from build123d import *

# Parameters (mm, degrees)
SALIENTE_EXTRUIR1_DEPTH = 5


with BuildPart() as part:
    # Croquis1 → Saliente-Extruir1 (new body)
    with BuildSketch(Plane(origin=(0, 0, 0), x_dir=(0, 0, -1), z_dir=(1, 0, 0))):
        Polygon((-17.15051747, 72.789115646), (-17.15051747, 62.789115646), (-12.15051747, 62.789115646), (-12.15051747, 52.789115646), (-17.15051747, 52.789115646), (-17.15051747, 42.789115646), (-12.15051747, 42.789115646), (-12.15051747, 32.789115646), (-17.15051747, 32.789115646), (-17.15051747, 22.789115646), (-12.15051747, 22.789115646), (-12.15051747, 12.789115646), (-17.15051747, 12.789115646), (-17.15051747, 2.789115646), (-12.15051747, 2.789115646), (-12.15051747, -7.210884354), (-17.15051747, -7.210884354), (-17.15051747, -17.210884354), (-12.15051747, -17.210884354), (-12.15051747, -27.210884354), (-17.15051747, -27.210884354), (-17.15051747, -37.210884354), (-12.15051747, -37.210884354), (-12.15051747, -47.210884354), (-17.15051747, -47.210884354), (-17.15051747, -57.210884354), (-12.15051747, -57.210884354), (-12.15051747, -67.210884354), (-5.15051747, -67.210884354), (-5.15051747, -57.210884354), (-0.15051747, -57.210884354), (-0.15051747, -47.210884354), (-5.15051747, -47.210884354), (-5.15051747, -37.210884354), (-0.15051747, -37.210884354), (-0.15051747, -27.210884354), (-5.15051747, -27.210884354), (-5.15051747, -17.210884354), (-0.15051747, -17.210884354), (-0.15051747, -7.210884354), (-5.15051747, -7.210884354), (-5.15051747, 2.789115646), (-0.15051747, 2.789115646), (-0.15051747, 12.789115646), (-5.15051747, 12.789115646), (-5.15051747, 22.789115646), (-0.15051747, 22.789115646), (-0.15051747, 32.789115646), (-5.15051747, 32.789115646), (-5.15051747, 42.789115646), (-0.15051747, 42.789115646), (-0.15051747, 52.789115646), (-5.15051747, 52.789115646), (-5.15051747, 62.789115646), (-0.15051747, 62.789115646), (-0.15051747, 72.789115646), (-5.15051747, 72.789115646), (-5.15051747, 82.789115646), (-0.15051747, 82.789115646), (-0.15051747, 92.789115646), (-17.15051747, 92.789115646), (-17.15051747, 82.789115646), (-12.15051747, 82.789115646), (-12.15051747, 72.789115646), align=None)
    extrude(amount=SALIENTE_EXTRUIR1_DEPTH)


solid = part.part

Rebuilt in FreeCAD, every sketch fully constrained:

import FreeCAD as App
import Part
import Sketcher
from FreeCAD import Vector

doc = App.newDocument("Part")
body = doc.addObject("PartDesign::Body", "Body")

sketch1 = body.newObject("Sketcher::SketchObject", "Sketch")
sketch1.AttachmentSupport = (doc.getObject("YZ_Plane"), [""])
sketch1.MapMode = "FlatFace"
sketch1.addGeometry(Part.LineSegment(Vector(73, 17, 0), Vector(63, 17, 0)), False)
sketch1.addGeometry(Part.LineSegment(Vector(63, 17, 0), Vector(63, 12, 0)), False)
sketch1.addGeometry(Part.LineSegment(Vector(63, 12, 0), Vector(53, 12, 0)), False)
sketch1.addGeometry(Part.LineSegment(Vector(53, 12, 0), Vector(53, 17, 0)), False)
sketch1.addGeometry(Part.LineSegment(Vector(53, 17, 0), Vector(43, 17, 0)), False)
sketch1.addGeometry(Part.LineSegment(Vector(43, 17, 0), Vector(43, 12, 0)), False)
sketch1.addGeometry(Part.LineSegment(Vector(43, 12, 0), Vector(33, 12, 0)), False)
sketch1.addGeometry(Part.LineSegment(Vector(33, 12, 0), Vector(33, 17, 0)), False)
sketch1.addGeometry(Part.LineSegment(Vector(33, 17, 0), Vector(23, 17, 0)), False)
sketch1.addGeometry(Part.LineSegment(Vector(23, 17, 0), Vector(23, 12, 0)), False)
sketch1.addGeometry(Part.LineSegment(Vector(23, 12, 0), Vector(13, 12, 0)), False)
sketch1.addGeometry(Part.LineSegment(Vector(13, 12, 0), Vector(13, 17, 0)), False)
sketch1.addGeometry(Part.LineSegment(Vector(13, 17, 0), Vector(3, 17, 0)), False)
sketch1.addGeometry(Part.LineSegment(Vector(3, 17, 0), Vector(3, 12, 0)), False)
sketch1.addGeometry(Part.LineSegment(Vector(3, 12, 0), Vector(-7, 12, 0)), False)
sketch1.addGeometry(Part.LineSegment(Vector(-7, 12, 0), Vector(-7, 17, 0)), False)
sketch1.addGeometry(Part.LineSegment(Vector(-7, 17, 0), Vector(-17, 17, 0)), False)
sketch1.addGeometry(Part.LineSegment(Vector(-17, 17, 0), Vector(-17, 12, 0)), False)
sketch1.addGeometry(Part.LineSegment(Vector(-17, 12, 0), Vector(-27, 12, 0)), False)
sketch1.addGeometry(Part.LineSegment(Vector(-27, 12, 0), Vector(-27, 17, 0)), False)
sketch1.addGeometry(Part.LineSegment(Vector(-27, 17, 0), Vector(-37, 17, 0)), False)
sketch1.addGeometry(Part.LineSegment(Vector(-37, 17, 0), Vector(-37, 12, 0)), False)
sketch1.addGeometry(Part.LineSegment(Vector(-37, 12, 0), Vector(-47, 12, 0)), False)
sketch1.addGeometry(Part.LineSegment(Vector(-47, 12, 0), Vector(-47, 17, 0)), False)
sketch1.addGeometry(Part.LineSegment(Vector(-47, 17, 0), Vector(-57, 17, 0)), False)
sketch1.addGeometry(Part.LineSegment(Vector(-57, 17, 0), Vector(-57, 12, 0)), False)
sketch1.addGeometry(Part.LineSegment(Vector(-57, 12, 0), Vector(-67, 12, 0)), False)
sketch1.addGeometry(Part.LineSegment(Vector(-67, 12, 0), Vector(-67, 5, 0)), False)
sketch1.addGeometry(Part.LineSegment(Vector(-67, 5, 0), Vector(-57, 5, 0)), False)
sketch1.addGeometry(Part.LineSegment(Vector(-57, 5, 0), Vector(-57, 0, 0)), False)
sketch1.addGeometry(Part.LineSegment(Vector(-57, 0, 0), Vector(-47, 0, 0)), False)
sketch1.addGeometry(Part.LineSegment(Vector(-47, 0, 0), Vector(-47, 5, 0)), False)
sketch1.addGeometry(Part.LineSegment(Vector(-47, 5, 0), Vector(-37, 5, 0)), False)
sketch1.addGeometry(Part.LineSegment(Vector(-37, 5, 0), Vector(-37, 0, 0)), False)
sketch1.addGeometry(Part.LineSegment(Vector(-37, 0, 0), Vector(-27, 0, 0)), False)
sketch1.addGeometry(Part.LineSegment(Vector(-27, 0, 0), Vector(-27, 5, 0)), False)
sketch1.addGeometry(Part.LineSegment(Vector(-27, 5, 0), Vector(-17, 5, 0)), False)
sketch1.addGeometry(Part.LineSegment(Vector(-17, 5, 0), Vector(-17, 0, 0)), False)
sketch1.addGeometry(Part.LineSegment(Vector(-17, 0, 0), Vector(-7, 0, 0)), False)
sketch1.addGeometry(Part.LineSegment(Vector(-7, 0, 0), Vector(-7, 5, 0)), False)
sketch1.addGeometry(Part.LineSegment(Vector(-7, 5, 0), Vector(3, 5, 0)), False)
sketch1.addGeometry(Part.LineSegment(Vector(3, 5, 0), Vector(3, 0, 0)), False)
sketch1.addGeometry(Part.LineSegment(Vector(3, 0, 0), Vector(13, 0, 0)), False)
sketch1.addGeometry(Part.LineSegment(Vector(13, 0, 0), Vector(13, 5, 0)), False)
sketch1.addGeometry(Part.LineSegment(Vector(13, 5, 0), Vector(23, 5, 0)), False)
sketch1.addGeometry(Part.LineSegment(Vector(23, 5, 0), Vector(23, 0, 0)), False)
sketch1.addGeometry(Part.LineSegment(Vector(23, 0, 0), Vector(33, 0, 0)), False)
sketch1.addGeometry(Part.LineSegment(Vector(33, 0, 0), Vector(33, 5, 0)), False)
sketch1.addGeometry(Part.LineSegment(Vector(33, 5, 0), Vector(43, 5, 0)), False)
sketch1.addGeometry(Part.LineSegment(Vector(43, 5, 0), Vector(43, 0, 0)), False)
sketch1.addGeometry(Part.LineSegment(Vector(43, 0, 0), Vector(53, 0, 0)), False)
sketch1.addGeometry(Part.LineSegment(Vector(53, 0, 0), Vector(53, 5, 0)), False)
sketch1.addGeometry(Part.LineSegment(Vector(53, 5, 0), Vector(63, 5, 0)), False)
sketch1.addGeometry(Part.LineSegment(Vector(63, 5, 0), Vector(63, 0, 0)), False)
sketch1.addGeometry(Part.LineSegment(Vector(63, 0, 0), Vector(73, 0, 0)), False)
sketch1.addGeometry(Part.LineSegment(Vector(73, 0, 0), Vector(73, 5, 0)), False)
sketch1.addGeometry(Part.LineSegment(Vector(73, 5, 0), Vector(83, 5, 0)), False)
sketch1.addGeometry(Part.LineSegment(Vector(83, 5, 0), Vector(83, 0, 0)), False)
sketch1.addGeometry(Part.LineSegment(Vector(83, 0, 0), Vector(93, 0, 0)), False)
sketch1.addGeometry(Part.LineSegment(Vector(93, 0, 0), Vector(93, 17, 0)), False)
sketch1.addGeometry(Part.LineSegment(Vector(93, 17, 0), Vector(83, 17, 0)), False)
sketch1.addGeometry(Part.LineSegment(Vector(83, 17, 0), Vector(83, 12, 0)), False)
sketch1.addGeometry(Part.LineSegment(Vector(83, 12, 0), Vector(73, 12, 0)), False)
sketch1.addGeometry(Part.LineSegment(Vector(73, 12, 0), Vector(73, 17, 0)), False)
sketch1.addConstraint(Sketcher.Constraint("Coincident", 0, 2, 1, 1))
sketch1.addConstraint(Sketcher.Constraint("Coincident", 1, 2, 2, 1))
sketch1.addConstraint(Sketcher.Constraint("Coincident", 2, 2, 3, 1))
sketch1.addConstraint(Sketcher.Constraint("Coincident", 3, 2, 4, 1))
sketch1.addConstraint(Sketcher.Constraint("Coincident", 4, 2, 5, 1))
sketch1.addConstraint(Sketcher.Constraint("Coincident", 5, 2, 6, 1))
sketch1.addConstraint(Sketcher.Constraint("Coincident", 6, 2, 7, 1))
sketch1.addConstraint(Sketcher.Constraint("Coincident", 7, 2, 8, 1))
sketch1.addConstraint(Sketcher.Constraint("Coincident", 8, 2, 9, 1))
sketch1.addConstraint(Sketcher.Constraint("Coincident", 9, 2, 10, 1))
sketch1.addConstraint(Sketcher.Constraint("Coincident", 10, 2, 11, 1))
sketch1.addConstraint(Sketcher.Constraint("Coincident", 11, 2, 12, 1))
sketch1.addConstraint(Sketcher.Constraint("Coincident", 12, 2, 13, 1))
sketch1.addConstraint(Sketcher.Constraint("Coincident", 13, 2, 14, 1))
sketch1.addConstraint(Sketcher.Constraint("Coincident", 14, 2, 15, 1))
sketch1.addConstraint(Sketcher.Constraint("Coincident", 15, 2, 16, 1))
sketch1.addConstraint(Sketcher.Constraint("Coincident", 16, 2, 17, 1))
sketch1.addConstraint(Sketcher.Constraint("Coincident", 17, 2, 18, 1))
sketch1.addConstraint(Sketcher.Constraint("Coincident", 18, 2, 19, 1))
sketch1.addConstraint(Sketcher.Constraint("Coincident", 19, 2, 20, 1))
sketch1.addConstraint(Sketcher.Constraint("Coincident", 20, 2, 21, 1))
sketch1.addConstraint(Sketcher.Constraint("Coincident", 21, 2, 22, 1))
sketch1.addConstraint(Sketcher.Constraint("Coincident", 22, 2, 23, 1))
sketch1.addConstraint(Sketcher.Constraint("Coincident", 23, 2, 24, 1))
sketch1.addConstraint(Sketcher.Constraint("Coincident", 24, 2, 25, 1))
sketch1.addConstraint(Sketcher.Constraint("Coincident", 25, 2, 26, 1))
sketch1.addConstraint(Sketcher.Constraint("Coincident", 26, 2, 27, 1))
sketch1.addConstraint(Sketcher.Constraint("Coincident", 27, 2, 28, 1))
sketch1.addConstraint(Sketcher.Constraint("Coincident", 28, 2, 29, 1))
sketch1.addConstraint(Sketcher.Constraint("Coincident", 29, 2, 30, 1))
sketch1.addConstraint(Sketcher.Constraint("Coincident", 30, 2, 31, 1))
sketch1.addConstraint(Sketcher.Constraint("Coincident", 31, 2, 32, 1))
sketch1.addConstraint(Sketcher.Constraint("Coincident", 32, 2, 33, 1))
sketch1.addConstraint(Sketcher.Constraint("Coincident", 33, 2, 34, 1))
sketch1.addConstraint(Sketcher.Constraint("Coincident", 34, 2, 35, 1))
sketch1.addConstraint(Sketcher.Constraint("Coincident", 35, 2, 36, 1))
sketch1.addConstraint(Sketcher.Constraint("Coincident", 36, 2, 37, 1))
sketch1.addConstraint(Sketcher.Constraint("Coincident", 37, 2, 38, 1))
sketch1.addConstraint(Sketcher.Constraint("Coincident", 38, 2, 39, 1))
sketch1.addConstraint(Sketcher.Constraint("Coincident", 39, 2, 40, 1))
sketch1.addConstraint(Sketcher.Constraint("Coincident", 40, 2, 41, 1))
sketch1.addConstraint(Sketcher.Constraint("Coincident", 41, 2, 42, 1))
sketch1.addConstraint(Sketcher.Constraint("Coincident", 42, 2, 43, 1))
sketch1.addConstraint(Sketcher.Constraint("Coincident", 43, 2, 44, 1))
sketch1.addConstraint(Sketcher.Constraint("Coincident", 44, 2, 45, 1))
sketch1.addConstraint(Sketcher.Constraint("Coincident", 45, 2, 46, 1))
sketch1.addConstraint(Sketcher.Constraint("Coincident", 46, 2, 47, 1))
sketch1.addConstraint(Sketcher.Constraint("Coincident", 47, 2, 48, 1))
sketch1.addConstraint(Sketcher.Constraint("Coincident", 48, 2, 49, 1))
sketch1.addConstraint(Sketcher.Constraint("Coincident", 49, 2, 50, 1))
sketch1.addConstraint(Sketcher.Constraint("Coincident", 50, 2, 51, 1))
sketch1.addConstraint(Sketcher.Constraint("Coincident", 51, 2, 52, 1))
sketch1.addConstraint(Sketcher.Constraint("Coincident", 52, 2, 53, 1))
sketch1.addConstraint(Sketcher.Constraint("Coincident", 53, 2, 54, 1))
sketch1.addConstraint(Sketcher.Constraint("Coincident", 54, 2, 55, 1))
sketch1.addConstraint(Sketcher.Constraint("Coincident", 55, 2, 56, 1))
sketch1.addConstraint(Sketcher.Constraint("Coincident", 56, 2, 57, 1))
sketch1.addConstraint(Sketcher.Constraint("Coincident", 57, 2, 58, 1))
sketch1.addConstraint(Sketcher.Constraint("Coincident", 58, 2, 59, 1))
sketch1.addConstraint(Sketcher.Constraint("Coincident", 59, 2, 60, 1))
sketch1.addConstraint(Sketcher.Constraint("Coincident", 60, 2, 61, 1))
sketch1.addConstraint(Sketcher.Constraint("Coincident", 61, 2, 62, 1))
sketch1.addConstraint(Sketcher.Constraint("Coincident", 62, 2, 63, 1))
sketch1.addConstraint(Sketcher.Constraint("Coincident", 63, 2, 0, 1))
sketch1.addConstraint(Sketcher.Constraint("Horizontal", 0))
sketch1.addConstraint(Sketcher.Constraint("Vertical", 1))
sketch1.addConstraint(Sketcher.Constraint("Horizontal", 2))
sketch1.addConstraint(Sketcher.Constraint("Vertical", 3))
sketch1.addConstraint(Sketcher.Constraint("Horizontal", 4))
sketch1.addConstraint(Sketcher.Constraint("Vertical", 5))
sketch1.addConstraint(Sketcher.Constraint("Horizontal", 6))
sketch1.addConstraint(Sketcher.Constraint("Vertical", 7))
sketch1.addConstraint(Sketcher.Constraint("Horizontal", 8))
sketch1.addConstraint(Sketcher.Constraint("Vertical", 9))
sketch1.addConstraint(Sketcher.Constraint("Horizontal", 10))
sketch1.addConstraint(Sketcher.Constraint("Vertical", 11))
sketch1.addConstraint(Sketcher.Constraint("Horizontal", 12))
sketch1.addConstraint(Sketcher.Constraint("Vertical", 13))
sketch1.addConstraint(Sketcher.Constraint("Horizontal", 14))
sketch1.addConstraint(Sketcher.Constraint("Vertical", 15))
sketch1.addConstraint(Sketcher.Constraint("Horizontal", 16))
sketch1.addConstraint(Sketcher.Constraint("Vertical", 17))
sketch1.addConstraint(Sketcher.Constraint("Horizontal", 18))
sketch1.addConstraint(Sketcher.Constraint("Vertical", 19))
sketch1.addConstraint(Sketcher.Constraint("Horizontal", 20))
sketch1.addConstraint(Sketcher.Constraint("Vertical", 21))
sketch1.addConstraint(Sketcher.Constraint("Horizontal", 22))
sketch1.addConstraint(Sketcher.Constraint("Vertical", 23))
sketch1.addConstraint(Sketcher.Constraint("Horizontal", 24))
sketch1.addConstraint(Sketcher.Constraint("Vertical", 25))
sketch1.addConstraint(Sketcher.Constraint("Horizontal", 26))
sketch1.addConstraint(Sketcher.Constraint("Vertical", 27))
sketch1.addConstraint(Sketcher.Constraint("Horizontal", 28))
sketch1.addConstraint(Sketcher.Constraint("Vertical", 29))
sketch1.addConstraint(Sketcher.Constraint("Horizontal", 30))
sketch1.addConstraint(Sketcher.Constraint("Vertical", 31))
sketch1.addConstraint(Sketcher.Constraint("Horizontal", 32))
sketch1.addConstraint(Sketcher.Constraint("Vertical", 33))
sketch1.addConstraint(Sketcher.Constraint("Horizontal", 34))
sketch1.addConstraint(Sketcher.Constraint("Vertical", 35))
sketch1.addConstraint(Sketcher.Constraint("Horizontal", 36))
sketch1.addConstraint(Sketcher.Constraint("Vertical", 37))
sketch1.addConstraint(Sketcher.Constraint("Horizontal", 38))
sketch1.addConstraint(Sketcher.Constraint("Vertical", 39))
sketch1.addConstraint(Sketcher.Constraint("Horizontal", 40))
sketch1.addConstraint(Sketcher.Constraint("Vertical", 41))
sketch1.addConstraint(Sketcher.Constraint("Horizontal", 42))
sketch1.addConstraint(Sketcher.Constraint("Vertical", 43))
sketch1.addConstraint(Sketcher.Constraint("Horizontal", 44))
sketch1.addConstraint(Sketcher.Constraint("Vertical", 45))
sketch1.addConstraint(Sketcher.Constraint("Horizontal", 46))
sketch1.addConstraint(Sketcher.Constraint("Vertical", 47))
sketch1.addConstraint(Sketcher.Constraint("Horizontal", 48))
sketch1.addConstraint(Sketcher.Constraint("Vertical", 49))
sketch1.addConstraint(Sketcher.Constraint("Horizontal", 50))
sketch1.addConstraint(Sketcher.Constraint("Vertical", 51))
sketch1.addConstraint(Sketcher.Constraint("Horizontal", 52))
sketch1.addConstraint(Sketcher.Constraint("Vertical", 53))
sketch1.addConstraint(Sketcher.Constraint("Horizontal", 54))
sketch1.addConstraint(Sketcher.Constraint("Vertical", 55))
sketch1.addConstraint(Sketcher.Constraint("Horizontal", 56))
sketch1.addConstraint(Sketcher.Constraint("Vertical", 57))
sketch1.addConstraint(Sketcher.Constraint("Horizontal", 58))
sketch1.addConstraint(Sketcher.Constraint("Vertical", 59))
sketch1.addConstraint(Sketcher.Constraint("Horizontal", 60))
sketch1.addConstraint(Sketcher.Constraint("Vertical", 61))
sketch1.addConstraint(Sketcher.Constraint("Horizontal", 62))
sketch1.addConstraint(Sketcher.Constraint("Vertical", 63))
sketch1.addConstraint(Sketcher.Constraint("Horizontal", 0, 2, 3, 2))
sketch1.addConstraint(Sketcher.Constraint("Horizontal", 2, 2, 5, 2))
sketch1.addConstraint(Sketcher.Constraint("Horizontal", 4, 2, 7, 2))
sketch1.addConstraint(Sketcher.Constraint("Horizontal", 6, 2, 9, 2))
sketch1.addConstraint(Sketcher.Constraint("Horizontal", 8, 2, 11, 2))
sketch1.addConstraint(Sketcher.Constraint("Horizontal", 10, 2, 13, 2))
sketch1.addConstraint(Sketcher.Constraint("Horizontal", 12, 2, 15, 2))
sketch1.addConstraint(Sketcher.Constraint("Horizontal", 14, 2, 17, 2))
sketch1.addConstraint(Sketcher.Constraint("Horizontal", 16, 2, 19, 2))
sketch1.addConstraint(Sketcher.Constraint("Horizontal", 18, 2, 21, 2))
sketch1.addConstraint(Sketcher.Constraint("Horizontal", 20, 2, 23, 2))
sketch1.addConstraint(Sketcher.Constraint("Horizontal", 22, 2, 25, 2))
sketch1.addConstraint(Sketcher.Constraint("Horizontal", 28, 2, 31, 2))
sketch1.addConstraint(Sketcher.Constraint("Horizontal", 30, 2, 33, 2))
sketch1.addConstraint(Sketcher.Constraint("Horizontal", 32, 2, 35, 2))
sketch1.addConstraint(Sketcher.Constraint("Horizontal", 34, 2, 37, 2))
sketch1.addConstraint(Sketcher.Constraint("Horizontal", 36, 2, 39, 2))
sketch1.addConstraint(Sketcher.Constraint("Horizontal", 38, 2, 41, 2))
sketch1.addConstraint(Sketcher.Constraint("Horizontal", 40, 2, 43, 2))
sketch1.addConstraint(Sketcher.Constraint("Horizontal", 42, 2, 45, 2))
sketch1.addConstraint(Sketcher.Constraint("Horizontal", 44, 2, 47, 2))
sketch1.addConstraint(Sketcher.Constraint("Horizontal", 46, 2, 49, 2))
sketch1.addConstraint(Sketcher.Constraint("Horizontal", 48, 2, 51, 2))
sketch1.addConstraint(Sketcher.Constraint("Horizontal", 50, 2, 53, 2))
sketch1.addConstraint(Sketcher.Constraint("Horizontal", 52, 2, 55, 2))
sketch1.addConstraint(Sketcher.Constraint("Horizontal", 54, 2, 57, 2))
sketch1.addConstraint(Sketcher.Constraint("Horizontal", 24, 2, 59, 2))
sketch1.addConstraint(Sketcher.Constraint("Horizontal", 26, 2, 61, 2))
sketch1.addConstraint(Sketcher.Constraint("Vertical", 25, 2, 28, 2))
sketch1.addConstraint(Sketcher.Constraint("Vertical", 23, 2, 30, 2))
sketch1.addConstraint(Sketcher.Constraint("Vertical", 21, 2, 32, 2))
sketch1.addConstraint(Sketcher.Constraint("Vertical", 19, 2, 34, 2))
sketch1.addConstraint(Sketcher.Constraint("Vertical", 17, 2, 36, 2))
sketch1.addConstraint(Sketcher.Constraint("Vertical", 15, 2, 38, 2))
sketch1.addConstraint(Sketcher.Constraint("Vertical", 13, 2, 40, 2))
sketch1.addConstraint(Sketcher.Constraint("Vertical", 11, 2, 42, 2))
sketch1.addConstraint(Sketcher.Constraint("Vertical", 9, 2, 44, 2))
sketch1.addConstraint(Sketcher.Constraint("Vertical", 7, 2, 46, 2))
sketch1.addConstraint(Sketcher.Constraint("Vertical", 5, 2, 48, 2))
sketch1.addConstraint(Sketcher.Constraint("Vertical", 3, 2, 50, 2))
sketch1.addConstraint(Sketcher.Constraint("Vertical", 1, 2, 52, 2))
sketch1.addConstraint(Sketcher.Constraint("Vertical", 57, 2, 60, 2))
sketch1.addConstraint(Sketcher.Constraint("Vertical", 55, 2, 62, 2))
sketch1.addConstraint(Sketcher.Constraint("Equal", 0, 2))
sketch1.addConstraint(Sketcher.Constraint("Equal", 2, 4))
sketch1.addConstraint(Sketcher.Constraint("Equal", 4, 6))
sketch1.addConstraint(Sketcher.Constraint("Equal", 6, 8))
sketch1.addConstraint(Sketcher.Constraint("Equal", 8, 10))
sketch1.addConstraint(Sketcher.Constraint("Equal", 10, 12))
sketch1.addConstraint(Sketcher.Constraint("Equal", 12, 14))
sketch1.addConstraint(Sketcher.Constraint("Equal", 14, 16))
sketch1.addConstraint(Sketcher.Constraint("Equal", 16, 18))
sketch1.addConstraint(Sketcher.Constraint("Equal", 18, 20))
sketch1.addConstraint(Sketcher.Constraint("Equal", 20, 22))
sketch1.addConstraint(Sketcher.Constraint("Equal", 22, 24))
sketch1.addConstraint(Sketcher.Constraint("Equal", 24, 26))
sketch1.addConstraint(Sketcher.Constraint("Equal", 54, 56))
sketch1.addConstraint(Sketcher.Constraint("Equal", 56, 58))
sketch1.addConstraint(Sketcher.Constraint("Equal", 25, 29))
sketch1.addConstraint(Sketcher.Constraint("DistanceX", 0, 2, 0, 1, 10.0))
sketch1.addConstraint(Sketcher.Constraint("DistanceY", 1, 2, 1, 1, 5.0))
sketch1.addConstraint(Sketcher.Constraint("DistanceY", 27, 2, 27, 1, 7.0))
sketch1.addConstraint(Sketcher.Constraint("DistanceX", -1, 1, 0, 2, 62.789116))
sketch1.addConstraint(Sketcher.Constraint("DistanceY", -1, 1, 0, 2, 17.150517))
pad1 = body.newObject("PartDesign::Pad", "Pad")
pad1.Profile = sketch1
pad1.Length = 5

doc.recompute()
